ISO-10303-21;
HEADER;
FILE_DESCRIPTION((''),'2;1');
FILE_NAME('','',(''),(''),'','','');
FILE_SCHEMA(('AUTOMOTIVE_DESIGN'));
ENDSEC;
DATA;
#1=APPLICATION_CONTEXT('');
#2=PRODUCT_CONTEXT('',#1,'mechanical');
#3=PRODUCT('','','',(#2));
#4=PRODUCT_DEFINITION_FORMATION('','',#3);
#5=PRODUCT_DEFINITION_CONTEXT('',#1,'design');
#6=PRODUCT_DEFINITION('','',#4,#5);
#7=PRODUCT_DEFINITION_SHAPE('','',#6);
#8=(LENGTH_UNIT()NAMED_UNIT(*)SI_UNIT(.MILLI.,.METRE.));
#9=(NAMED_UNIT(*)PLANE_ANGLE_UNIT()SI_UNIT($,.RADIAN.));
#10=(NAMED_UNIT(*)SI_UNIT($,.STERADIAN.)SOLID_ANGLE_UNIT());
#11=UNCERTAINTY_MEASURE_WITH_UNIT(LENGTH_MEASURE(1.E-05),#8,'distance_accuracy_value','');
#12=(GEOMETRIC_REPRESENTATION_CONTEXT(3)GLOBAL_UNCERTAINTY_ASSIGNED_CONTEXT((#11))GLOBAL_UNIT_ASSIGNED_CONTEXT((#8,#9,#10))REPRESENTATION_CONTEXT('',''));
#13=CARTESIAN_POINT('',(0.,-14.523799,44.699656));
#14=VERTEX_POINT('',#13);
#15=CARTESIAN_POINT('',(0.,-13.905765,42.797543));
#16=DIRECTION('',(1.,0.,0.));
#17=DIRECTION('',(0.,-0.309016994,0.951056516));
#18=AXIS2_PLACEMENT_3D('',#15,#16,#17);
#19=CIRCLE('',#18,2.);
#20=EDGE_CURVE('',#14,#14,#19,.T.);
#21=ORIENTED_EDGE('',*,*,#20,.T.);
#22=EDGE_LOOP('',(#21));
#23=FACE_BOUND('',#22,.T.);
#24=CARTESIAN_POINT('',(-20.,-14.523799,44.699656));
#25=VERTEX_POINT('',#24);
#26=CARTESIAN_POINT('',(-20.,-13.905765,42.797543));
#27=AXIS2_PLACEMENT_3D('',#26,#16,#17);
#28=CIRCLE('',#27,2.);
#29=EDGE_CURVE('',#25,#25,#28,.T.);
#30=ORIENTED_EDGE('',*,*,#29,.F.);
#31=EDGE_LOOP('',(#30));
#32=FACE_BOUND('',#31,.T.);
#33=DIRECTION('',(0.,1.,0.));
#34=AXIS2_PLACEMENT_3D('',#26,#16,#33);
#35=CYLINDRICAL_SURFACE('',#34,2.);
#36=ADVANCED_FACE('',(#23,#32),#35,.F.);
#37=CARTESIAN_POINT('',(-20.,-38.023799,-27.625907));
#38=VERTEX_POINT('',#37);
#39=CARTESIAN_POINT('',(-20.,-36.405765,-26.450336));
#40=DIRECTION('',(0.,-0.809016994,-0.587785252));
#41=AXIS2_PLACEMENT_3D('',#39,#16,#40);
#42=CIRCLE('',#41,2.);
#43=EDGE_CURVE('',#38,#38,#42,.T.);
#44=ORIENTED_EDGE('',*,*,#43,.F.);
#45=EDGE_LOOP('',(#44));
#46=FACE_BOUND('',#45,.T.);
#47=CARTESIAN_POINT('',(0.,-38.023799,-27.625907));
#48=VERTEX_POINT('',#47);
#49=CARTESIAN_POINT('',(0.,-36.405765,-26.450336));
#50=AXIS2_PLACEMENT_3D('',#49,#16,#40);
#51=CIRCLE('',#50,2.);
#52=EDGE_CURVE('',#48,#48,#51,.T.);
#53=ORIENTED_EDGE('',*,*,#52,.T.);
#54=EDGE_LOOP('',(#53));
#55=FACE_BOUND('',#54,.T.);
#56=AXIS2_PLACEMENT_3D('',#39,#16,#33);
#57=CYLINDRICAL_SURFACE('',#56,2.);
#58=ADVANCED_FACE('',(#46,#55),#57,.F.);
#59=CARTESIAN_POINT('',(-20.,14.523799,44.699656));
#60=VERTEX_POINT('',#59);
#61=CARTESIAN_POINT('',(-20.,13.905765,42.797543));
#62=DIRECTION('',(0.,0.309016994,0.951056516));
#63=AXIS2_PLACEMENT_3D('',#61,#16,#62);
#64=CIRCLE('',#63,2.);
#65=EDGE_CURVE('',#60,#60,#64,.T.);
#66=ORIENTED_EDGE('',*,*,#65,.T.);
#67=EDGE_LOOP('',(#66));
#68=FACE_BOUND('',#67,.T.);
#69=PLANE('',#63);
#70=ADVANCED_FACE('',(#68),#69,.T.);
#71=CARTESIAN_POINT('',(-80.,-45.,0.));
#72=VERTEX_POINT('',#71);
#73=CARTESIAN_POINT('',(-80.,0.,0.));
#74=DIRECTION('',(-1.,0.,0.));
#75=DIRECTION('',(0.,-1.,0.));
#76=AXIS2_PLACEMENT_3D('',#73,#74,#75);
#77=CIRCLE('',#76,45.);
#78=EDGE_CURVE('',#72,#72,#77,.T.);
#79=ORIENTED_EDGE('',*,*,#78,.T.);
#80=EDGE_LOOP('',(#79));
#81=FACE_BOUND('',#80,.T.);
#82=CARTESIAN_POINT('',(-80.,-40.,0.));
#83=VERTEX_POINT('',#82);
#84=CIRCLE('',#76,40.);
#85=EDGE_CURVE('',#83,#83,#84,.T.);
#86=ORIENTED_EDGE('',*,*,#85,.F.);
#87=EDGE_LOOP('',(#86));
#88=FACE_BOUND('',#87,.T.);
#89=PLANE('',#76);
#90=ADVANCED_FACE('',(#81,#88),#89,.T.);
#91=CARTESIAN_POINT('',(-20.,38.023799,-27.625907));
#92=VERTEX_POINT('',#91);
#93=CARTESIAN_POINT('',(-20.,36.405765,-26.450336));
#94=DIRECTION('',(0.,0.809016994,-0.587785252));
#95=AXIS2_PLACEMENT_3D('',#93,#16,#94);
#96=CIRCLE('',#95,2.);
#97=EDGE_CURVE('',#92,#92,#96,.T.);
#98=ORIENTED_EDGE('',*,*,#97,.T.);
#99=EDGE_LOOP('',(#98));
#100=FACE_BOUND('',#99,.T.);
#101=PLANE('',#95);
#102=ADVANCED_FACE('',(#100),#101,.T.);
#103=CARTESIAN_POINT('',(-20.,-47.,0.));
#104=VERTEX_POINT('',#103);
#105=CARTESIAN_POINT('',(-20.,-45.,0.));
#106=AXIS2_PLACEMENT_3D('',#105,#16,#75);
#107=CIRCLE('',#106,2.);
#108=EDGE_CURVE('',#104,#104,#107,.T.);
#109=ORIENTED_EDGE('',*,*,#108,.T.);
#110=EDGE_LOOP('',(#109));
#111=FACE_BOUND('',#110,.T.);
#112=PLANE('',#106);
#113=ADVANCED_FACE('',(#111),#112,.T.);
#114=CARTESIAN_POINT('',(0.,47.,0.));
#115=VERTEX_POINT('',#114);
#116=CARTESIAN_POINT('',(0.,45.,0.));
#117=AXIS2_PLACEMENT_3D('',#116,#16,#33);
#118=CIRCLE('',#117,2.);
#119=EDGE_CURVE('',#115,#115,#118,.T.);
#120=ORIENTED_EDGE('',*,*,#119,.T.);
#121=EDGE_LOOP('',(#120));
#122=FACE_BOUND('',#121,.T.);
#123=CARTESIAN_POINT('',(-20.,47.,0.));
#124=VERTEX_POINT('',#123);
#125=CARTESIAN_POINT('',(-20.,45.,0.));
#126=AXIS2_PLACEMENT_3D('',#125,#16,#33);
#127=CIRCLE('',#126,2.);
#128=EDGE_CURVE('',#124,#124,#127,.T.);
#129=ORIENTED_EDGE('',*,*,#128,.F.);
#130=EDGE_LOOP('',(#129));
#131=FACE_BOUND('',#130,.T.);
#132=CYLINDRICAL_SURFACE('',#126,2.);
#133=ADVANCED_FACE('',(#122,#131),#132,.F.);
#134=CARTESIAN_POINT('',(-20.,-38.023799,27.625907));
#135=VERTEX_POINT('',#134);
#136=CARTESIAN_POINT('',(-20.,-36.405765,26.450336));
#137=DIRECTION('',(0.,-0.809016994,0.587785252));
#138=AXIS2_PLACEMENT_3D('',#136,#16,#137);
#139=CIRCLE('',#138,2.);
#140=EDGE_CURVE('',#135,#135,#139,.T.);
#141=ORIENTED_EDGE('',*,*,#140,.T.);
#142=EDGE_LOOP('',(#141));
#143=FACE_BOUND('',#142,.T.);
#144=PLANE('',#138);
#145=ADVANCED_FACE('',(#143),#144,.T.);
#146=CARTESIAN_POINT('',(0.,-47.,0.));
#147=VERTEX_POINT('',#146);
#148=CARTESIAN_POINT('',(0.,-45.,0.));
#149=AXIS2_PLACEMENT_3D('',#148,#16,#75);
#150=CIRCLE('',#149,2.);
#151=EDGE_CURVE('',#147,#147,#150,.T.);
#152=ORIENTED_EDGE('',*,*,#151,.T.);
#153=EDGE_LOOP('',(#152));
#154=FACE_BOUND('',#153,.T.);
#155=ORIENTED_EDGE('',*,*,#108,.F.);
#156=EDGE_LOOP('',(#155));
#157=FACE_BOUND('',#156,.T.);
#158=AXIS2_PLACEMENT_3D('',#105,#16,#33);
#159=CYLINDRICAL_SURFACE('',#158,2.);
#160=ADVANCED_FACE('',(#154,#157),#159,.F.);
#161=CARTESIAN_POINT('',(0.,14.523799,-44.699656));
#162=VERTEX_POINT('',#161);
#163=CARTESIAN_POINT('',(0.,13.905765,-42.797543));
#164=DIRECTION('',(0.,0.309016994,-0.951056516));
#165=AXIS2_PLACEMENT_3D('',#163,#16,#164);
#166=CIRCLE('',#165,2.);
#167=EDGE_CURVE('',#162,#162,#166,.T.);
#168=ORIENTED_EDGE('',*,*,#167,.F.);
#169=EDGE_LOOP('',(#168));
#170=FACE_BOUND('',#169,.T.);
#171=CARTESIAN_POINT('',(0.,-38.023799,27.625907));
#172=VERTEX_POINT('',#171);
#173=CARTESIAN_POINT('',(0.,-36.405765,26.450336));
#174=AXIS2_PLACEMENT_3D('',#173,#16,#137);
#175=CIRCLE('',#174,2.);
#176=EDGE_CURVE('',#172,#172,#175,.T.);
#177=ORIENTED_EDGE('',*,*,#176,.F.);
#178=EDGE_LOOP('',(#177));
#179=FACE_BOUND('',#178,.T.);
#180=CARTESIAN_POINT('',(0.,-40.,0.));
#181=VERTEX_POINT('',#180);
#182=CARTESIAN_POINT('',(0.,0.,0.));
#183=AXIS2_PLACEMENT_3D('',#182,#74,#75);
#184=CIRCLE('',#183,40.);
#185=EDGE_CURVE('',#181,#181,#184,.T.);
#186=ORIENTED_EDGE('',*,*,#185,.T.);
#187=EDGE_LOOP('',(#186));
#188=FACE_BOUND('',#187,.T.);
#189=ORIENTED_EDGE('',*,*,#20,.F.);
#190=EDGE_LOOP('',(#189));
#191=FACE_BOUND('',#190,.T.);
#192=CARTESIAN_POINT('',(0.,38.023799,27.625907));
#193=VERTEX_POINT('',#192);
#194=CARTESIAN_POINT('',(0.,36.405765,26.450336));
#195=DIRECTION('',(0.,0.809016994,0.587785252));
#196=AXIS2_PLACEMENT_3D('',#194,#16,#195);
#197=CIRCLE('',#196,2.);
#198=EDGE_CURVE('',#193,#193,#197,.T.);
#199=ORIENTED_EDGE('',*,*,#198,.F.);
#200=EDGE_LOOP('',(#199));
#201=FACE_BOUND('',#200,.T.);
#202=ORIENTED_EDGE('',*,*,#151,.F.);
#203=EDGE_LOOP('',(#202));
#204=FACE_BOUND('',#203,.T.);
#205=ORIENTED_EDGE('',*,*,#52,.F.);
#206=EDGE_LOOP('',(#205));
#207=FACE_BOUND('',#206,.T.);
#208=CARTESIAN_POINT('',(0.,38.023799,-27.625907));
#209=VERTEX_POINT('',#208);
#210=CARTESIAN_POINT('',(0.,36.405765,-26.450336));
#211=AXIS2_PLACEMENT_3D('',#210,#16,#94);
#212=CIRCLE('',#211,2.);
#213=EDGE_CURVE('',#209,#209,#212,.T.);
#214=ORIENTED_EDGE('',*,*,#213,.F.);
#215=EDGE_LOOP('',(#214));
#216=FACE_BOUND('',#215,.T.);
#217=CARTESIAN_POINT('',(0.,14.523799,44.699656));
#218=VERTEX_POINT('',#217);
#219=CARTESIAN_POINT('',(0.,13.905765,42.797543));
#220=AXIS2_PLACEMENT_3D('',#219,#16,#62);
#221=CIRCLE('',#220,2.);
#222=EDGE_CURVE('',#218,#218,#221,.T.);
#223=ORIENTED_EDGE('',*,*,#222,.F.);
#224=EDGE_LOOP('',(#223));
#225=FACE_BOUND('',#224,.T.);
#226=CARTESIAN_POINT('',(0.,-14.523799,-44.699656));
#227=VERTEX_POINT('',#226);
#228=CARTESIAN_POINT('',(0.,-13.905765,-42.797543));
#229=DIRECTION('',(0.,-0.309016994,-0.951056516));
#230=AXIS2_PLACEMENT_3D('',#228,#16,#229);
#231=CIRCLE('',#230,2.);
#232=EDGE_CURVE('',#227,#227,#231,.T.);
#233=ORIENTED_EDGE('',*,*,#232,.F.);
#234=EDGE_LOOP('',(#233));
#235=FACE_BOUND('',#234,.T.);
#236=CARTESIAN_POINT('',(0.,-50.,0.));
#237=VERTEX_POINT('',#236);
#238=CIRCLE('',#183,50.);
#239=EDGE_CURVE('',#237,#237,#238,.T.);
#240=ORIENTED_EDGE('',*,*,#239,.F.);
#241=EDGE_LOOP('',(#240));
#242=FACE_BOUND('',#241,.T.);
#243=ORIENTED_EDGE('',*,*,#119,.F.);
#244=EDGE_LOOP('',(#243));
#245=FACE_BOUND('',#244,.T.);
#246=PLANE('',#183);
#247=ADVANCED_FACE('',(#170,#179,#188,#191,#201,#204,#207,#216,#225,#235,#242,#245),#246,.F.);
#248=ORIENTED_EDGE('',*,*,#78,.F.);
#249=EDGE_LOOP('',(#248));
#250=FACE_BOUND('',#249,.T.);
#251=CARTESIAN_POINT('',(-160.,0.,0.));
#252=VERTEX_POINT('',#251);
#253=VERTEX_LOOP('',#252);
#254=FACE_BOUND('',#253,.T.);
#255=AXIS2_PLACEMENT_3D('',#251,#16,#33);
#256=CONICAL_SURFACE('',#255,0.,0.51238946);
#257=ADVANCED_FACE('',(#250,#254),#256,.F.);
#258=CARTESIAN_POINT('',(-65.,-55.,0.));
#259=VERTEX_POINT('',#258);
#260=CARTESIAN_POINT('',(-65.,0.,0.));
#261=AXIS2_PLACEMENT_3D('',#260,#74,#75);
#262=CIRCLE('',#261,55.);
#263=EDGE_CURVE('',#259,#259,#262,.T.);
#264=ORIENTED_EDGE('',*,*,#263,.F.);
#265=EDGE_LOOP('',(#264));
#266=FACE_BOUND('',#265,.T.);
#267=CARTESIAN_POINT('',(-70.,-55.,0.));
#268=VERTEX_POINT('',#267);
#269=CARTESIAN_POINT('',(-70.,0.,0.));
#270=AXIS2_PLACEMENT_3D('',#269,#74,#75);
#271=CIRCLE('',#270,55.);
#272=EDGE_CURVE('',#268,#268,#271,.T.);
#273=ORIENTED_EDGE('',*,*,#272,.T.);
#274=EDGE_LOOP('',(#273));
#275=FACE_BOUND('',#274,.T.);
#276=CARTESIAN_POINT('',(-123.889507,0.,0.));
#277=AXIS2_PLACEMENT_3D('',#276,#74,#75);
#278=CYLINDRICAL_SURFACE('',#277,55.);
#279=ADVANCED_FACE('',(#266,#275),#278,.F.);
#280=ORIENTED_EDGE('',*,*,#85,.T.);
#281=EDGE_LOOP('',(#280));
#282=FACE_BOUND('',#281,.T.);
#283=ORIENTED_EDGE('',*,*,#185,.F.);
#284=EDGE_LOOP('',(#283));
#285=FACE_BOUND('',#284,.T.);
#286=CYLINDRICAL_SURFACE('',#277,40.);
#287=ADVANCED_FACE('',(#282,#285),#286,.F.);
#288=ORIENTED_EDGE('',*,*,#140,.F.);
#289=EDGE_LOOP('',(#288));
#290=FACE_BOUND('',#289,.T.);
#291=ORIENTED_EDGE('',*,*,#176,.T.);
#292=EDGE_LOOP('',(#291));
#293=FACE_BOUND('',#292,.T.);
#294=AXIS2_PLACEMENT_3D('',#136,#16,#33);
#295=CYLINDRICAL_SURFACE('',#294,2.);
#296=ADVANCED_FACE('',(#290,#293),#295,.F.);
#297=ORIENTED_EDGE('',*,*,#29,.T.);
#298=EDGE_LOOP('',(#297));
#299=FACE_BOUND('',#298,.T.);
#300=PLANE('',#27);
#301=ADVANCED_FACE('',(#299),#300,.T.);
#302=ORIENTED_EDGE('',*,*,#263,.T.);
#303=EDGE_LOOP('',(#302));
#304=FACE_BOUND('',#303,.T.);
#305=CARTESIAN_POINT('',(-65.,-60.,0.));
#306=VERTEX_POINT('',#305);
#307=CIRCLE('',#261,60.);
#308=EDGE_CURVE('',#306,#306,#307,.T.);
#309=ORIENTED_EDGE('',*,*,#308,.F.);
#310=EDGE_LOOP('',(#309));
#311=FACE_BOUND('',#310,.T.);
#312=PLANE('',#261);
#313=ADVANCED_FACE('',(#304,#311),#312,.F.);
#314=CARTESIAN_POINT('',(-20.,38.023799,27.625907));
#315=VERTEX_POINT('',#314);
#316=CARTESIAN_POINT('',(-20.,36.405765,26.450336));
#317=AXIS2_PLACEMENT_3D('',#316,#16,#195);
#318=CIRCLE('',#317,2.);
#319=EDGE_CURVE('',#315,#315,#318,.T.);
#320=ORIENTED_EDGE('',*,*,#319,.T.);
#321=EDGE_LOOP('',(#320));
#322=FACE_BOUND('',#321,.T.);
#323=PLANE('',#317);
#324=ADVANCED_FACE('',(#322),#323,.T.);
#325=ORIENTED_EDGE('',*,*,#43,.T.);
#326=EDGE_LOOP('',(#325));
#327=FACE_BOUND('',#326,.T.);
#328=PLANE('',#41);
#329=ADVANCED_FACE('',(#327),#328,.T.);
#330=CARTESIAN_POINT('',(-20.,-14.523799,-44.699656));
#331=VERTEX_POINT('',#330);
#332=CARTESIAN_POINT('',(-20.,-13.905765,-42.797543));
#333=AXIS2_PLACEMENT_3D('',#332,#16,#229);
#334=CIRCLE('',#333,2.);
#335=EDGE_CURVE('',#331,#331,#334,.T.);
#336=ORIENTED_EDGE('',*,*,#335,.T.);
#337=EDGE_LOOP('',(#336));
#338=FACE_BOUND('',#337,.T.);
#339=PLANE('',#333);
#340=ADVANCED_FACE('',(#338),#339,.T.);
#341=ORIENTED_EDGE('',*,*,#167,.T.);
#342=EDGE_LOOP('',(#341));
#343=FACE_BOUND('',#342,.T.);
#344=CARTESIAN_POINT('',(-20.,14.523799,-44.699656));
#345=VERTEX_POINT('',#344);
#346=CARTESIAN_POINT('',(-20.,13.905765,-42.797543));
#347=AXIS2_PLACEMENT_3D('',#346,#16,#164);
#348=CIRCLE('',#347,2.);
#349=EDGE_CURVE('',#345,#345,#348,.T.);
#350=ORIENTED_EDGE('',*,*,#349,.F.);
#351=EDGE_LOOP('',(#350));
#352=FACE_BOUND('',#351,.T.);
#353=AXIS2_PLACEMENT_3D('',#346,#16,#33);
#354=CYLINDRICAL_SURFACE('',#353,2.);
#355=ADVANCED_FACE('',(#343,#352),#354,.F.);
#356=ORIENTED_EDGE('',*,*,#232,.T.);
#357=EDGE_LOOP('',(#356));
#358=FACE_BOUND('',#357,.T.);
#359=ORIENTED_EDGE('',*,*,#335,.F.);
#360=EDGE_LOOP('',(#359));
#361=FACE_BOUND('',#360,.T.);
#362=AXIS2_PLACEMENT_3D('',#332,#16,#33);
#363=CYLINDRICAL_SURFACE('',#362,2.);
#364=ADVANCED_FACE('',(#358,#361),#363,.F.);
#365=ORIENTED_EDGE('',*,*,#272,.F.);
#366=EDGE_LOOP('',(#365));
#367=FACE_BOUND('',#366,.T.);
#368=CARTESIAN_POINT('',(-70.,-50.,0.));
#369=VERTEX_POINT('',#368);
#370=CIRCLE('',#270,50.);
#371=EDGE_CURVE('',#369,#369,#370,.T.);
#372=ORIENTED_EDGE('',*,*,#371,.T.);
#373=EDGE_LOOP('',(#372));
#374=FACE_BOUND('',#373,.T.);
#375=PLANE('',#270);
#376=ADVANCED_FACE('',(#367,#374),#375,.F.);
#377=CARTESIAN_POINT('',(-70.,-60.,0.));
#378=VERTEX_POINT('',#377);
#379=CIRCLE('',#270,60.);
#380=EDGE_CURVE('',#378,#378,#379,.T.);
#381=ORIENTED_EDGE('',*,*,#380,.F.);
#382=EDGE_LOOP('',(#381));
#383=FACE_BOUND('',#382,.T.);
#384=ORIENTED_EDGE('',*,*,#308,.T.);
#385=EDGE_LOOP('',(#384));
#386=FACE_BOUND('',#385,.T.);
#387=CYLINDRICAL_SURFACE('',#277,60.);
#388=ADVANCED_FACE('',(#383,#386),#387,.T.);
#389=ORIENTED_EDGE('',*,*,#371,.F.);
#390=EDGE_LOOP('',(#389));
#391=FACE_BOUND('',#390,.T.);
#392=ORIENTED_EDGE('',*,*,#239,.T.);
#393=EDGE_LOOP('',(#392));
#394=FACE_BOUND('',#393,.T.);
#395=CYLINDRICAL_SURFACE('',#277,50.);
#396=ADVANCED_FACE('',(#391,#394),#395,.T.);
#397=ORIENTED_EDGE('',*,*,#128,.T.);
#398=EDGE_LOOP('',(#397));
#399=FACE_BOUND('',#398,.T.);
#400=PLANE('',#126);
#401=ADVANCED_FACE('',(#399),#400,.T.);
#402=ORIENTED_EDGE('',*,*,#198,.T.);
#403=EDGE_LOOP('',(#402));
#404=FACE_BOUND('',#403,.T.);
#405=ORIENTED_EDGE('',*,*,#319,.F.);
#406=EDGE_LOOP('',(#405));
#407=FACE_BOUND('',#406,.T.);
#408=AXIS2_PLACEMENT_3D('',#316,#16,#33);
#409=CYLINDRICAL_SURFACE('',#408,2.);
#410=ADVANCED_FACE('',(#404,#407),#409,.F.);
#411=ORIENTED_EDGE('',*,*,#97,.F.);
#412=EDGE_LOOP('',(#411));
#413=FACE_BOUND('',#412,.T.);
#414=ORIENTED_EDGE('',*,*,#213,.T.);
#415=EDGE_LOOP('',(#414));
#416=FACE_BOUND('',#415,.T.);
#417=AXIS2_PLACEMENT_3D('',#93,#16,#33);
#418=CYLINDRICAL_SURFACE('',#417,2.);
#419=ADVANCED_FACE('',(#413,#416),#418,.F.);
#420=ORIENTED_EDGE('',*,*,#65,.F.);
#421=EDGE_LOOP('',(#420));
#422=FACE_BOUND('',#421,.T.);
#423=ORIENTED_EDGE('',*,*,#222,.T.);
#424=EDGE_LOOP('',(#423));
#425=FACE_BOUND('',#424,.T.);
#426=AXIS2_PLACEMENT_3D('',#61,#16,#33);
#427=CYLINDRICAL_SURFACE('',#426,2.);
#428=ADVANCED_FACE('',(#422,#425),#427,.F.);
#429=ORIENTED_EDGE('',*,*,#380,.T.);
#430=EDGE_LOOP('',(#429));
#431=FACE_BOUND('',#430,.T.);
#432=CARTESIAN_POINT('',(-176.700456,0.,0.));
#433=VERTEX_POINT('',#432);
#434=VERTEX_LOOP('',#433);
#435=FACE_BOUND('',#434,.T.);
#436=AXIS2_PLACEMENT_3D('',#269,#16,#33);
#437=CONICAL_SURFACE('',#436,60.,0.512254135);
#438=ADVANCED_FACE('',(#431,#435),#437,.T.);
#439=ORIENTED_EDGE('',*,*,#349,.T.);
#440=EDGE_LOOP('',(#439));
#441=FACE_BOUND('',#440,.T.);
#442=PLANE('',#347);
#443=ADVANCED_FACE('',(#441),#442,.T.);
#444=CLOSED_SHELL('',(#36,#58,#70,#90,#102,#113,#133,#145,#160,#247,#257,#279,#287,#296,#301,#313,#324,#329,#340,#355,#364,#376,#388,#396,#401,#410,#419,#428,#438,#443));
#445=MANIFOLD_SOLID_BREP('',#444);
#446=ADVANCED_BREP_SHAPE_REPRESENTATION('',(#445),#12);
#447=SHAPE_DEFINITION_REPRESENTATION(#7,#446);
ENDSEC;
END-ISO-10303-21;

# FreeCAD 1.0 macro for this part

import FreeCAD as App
import Part
import Sketcher
Q = App.Units.Quantity

doc = App.newDocument("Part")
body = doc.addObject("PartDesign::Body", "Body")

sketch1 = body.newObject("Sketcher::SketchObject", "Sketch")
sketch1.AttachmentSupport = (doc.getObject("XY_Plane"), [""])
sketch1.MapMode = "FlatFace"
sketch1.addGeometry(Part.LineSegment(App.Vector(-65, 60, 0), App.Vector(-70, 60, 0)), False)
sketch1.addGeometry(Part.LineSegment(App.Vector(-70, 60, 0), App.Vector(-176.700456, 0, 0)), False)
sketch1.addGeometry(Part.LineSegment(App.Vector(-176.700456, 0, 0), App.Vector(-160, 0, 0)), False)
sketch1.addGeometry(Part.LineSegment(App.Vector(-160, 0, 0), App.Vector(-80, 45, 0)), False)
sketch1.addGeometry(Part.LineSegment(App.Vector(-80, 45, 0), App.Vector(-80, 40, 0)), False)
sketch1.addGeometry(Part.LineSegment(App.Vector(-80, 40, 0), App.Vector(0, 40, 0)), False)
sketch1.addGeometry(Part.LineSegment(App.Vector(0, 40, 0), App.Vector(0, 50, 0)), False)
sketch1.addGeometry(Part.LineSegment(App.Vector(0, 50, 0), App.Vector(-70, 50, 0)), False)
sketch1.addGeometry(Part.LineSegment(App.Vector(-70, 50, 0), App.Vector(-70, 55, 0)), False)
sketch1.addGeometry(Part.LineSegment(App.Vector(-70, 55, 0), App.Vector(-65, 55, 0)), False)
sketch1.addGeometry(Part.LineSegment(App.Vector(-65, 55, 0), App.Vector(-65, 60, 0)), False)
sketch1.addConstraint(Sketcher.Constraint("Coincident", 0, 2, 1, 1))
sketch1.addConstraint(Sketcher.Constraint("Coincident", 1, 2, 2, 1))
sketch1.addConstraint(Sketcher.Constraint("Coincident", 2, 2, 3, 1))
sketch1.addConstraint(Sketcher.Constraint("Coincident", 3, 2, 4, 1))
sketch1.addConstraint(Sketcher.Constraint("Coincident", 4, 2, 5, 1))
sketch1.addConstraint(Sketcher.Constraint("Coincident", 5, 2, 6, 1))
sketch1.addConstraint(Sketcher.Constraint("Coincident", 6, 2, 7, 1))
sketch1.addConstraint(Sketcher.Constraint("Coincident", 7, 2, 8, 1))
sketch1.addConstraint(Sketcher.Constraint("Coincident", 8, 2, 9, 1))
sketch1.addConstraint(Sketcher.Constraint("Coincident", 9, 2, 10, 1))
sketch1.addConstraint(Sketcher.Constraint("Coincident", 10, 2, 0, 1))
sketch1.addConstraint(Sketcher.Constraint("Horizontal", 0))
sketch1.addConstraint(Sketcher.Constraint("Horizontal", 2))
sketch1.addConstraint(Sketcher.Constraint("Vertical", 4))
sketch1.addConstraint(Sketcher.Constraint("Horizontal", 5))
sketch1.addConstraint(Sketcher.Constraint("Vertical", 6))
sketch1.addConstraint(Sketcher.Constraint("Horizontal", 7))
sketch1.addConstraint(Sketcher.Constraint("Vertical", 8))
sketch1.addConstraint(Sketcher.Constraint("Horizontal", 9))
sketch1.addConstraint(Sketcher.Constraint("Vertical", 10))
sketch1.addConstraint(Sketcher.Constraint("PointOnObject", 1, 2, -1))
sketch1.addConstraint(Sketcher.Constraint("PointOnObject", 5, 2, -2))
sketch1.addConstraint(Sketcher.Constraint("Vertical", 0, 2, 7, 2))
sketch1.addConstraint(Sketcher.Constraint("Equal", 9, 4))
sketch1.addConstraint(Sketcher.Constraint("Equal", 4, 8))
sketch1.addConstraint(Sketcher.Constraint("Equal", 8, 10))
sketch1.addConstraint(Sketcher.Constraint("DistanceX", 0, 2, 0, 1, Q("5 mm")))
sketch1.addConstraint(Sketcher.Constraint("DistanceX", 5, 1, 5, 2, Q("80 mm")))
sketch1.addConstraint(Sketcher.Constraint("DistanceX", 7, 2, 7, 1, Q("70 mm")))
sketch1.addConstraint(Sketcher.Constraint("DistanceY", 6, 1, 6, 2, Q("10 mm")))
sketch1.addConstraint(Sketcher.Constraint("DistanceY", -1, 1, 0, 2, Q("60 mm")))
sketch1.addConstraint(Sketcher.Constraint("DistanceX", 2, 2, -1, 1, Q("160 mm")))
sketch1.addConstraint(Sketcher.Constraint("Angle", 1, Q("-150.65 deg")))
revolution = body.newObject("PartDesign::Revolution", "Revolution")
revolution.Profile = sketch1
revolution.ReferenceAxis = (sketch1, ["H_Axis"])
revolution.Angle = 360

sketch2 = body.newObject("Sketcher::SketchObject", "Sketch001")
sketch2.AttachmentSupport = (doc.getObject("YZ_Plane"), [""])
sketch2.MapMode = "FlatFace"
sketch2.addGeometry(Part.Circle(App.Vector(45, 0, 0), App.Vector(0, 0, 1), 2), False)
sketch2.addConstraint(Sketcher.Constraint("PointOnObject", 0, 3, -1))
sketch2.addConstraint(Sketcher.Constraint("Diameter", 0, Q("4 mm")))
sketch2.addConstraint(Sketcher.Constraint("DistanceX", -1, 1, 0, 3, Q("45 mm")))
pocket1 = body.newObject("PartDesign::Pocket", "Pocket")
pocket1.Profile = sketch2
pocket1.Length = 20
doc.recompute()

polarpattern = body.newObject("PartDesign::PolarPattern", "PolarPattern")
polarpattern.Originals = [pocket1]
polarpattern.Axis = (doc.getObject("X_Axis"), [""])
polarpattern.Angle = 360
polarpattern.Occurrences = 10
body.Tip = polarpattern

doc.recompute()
